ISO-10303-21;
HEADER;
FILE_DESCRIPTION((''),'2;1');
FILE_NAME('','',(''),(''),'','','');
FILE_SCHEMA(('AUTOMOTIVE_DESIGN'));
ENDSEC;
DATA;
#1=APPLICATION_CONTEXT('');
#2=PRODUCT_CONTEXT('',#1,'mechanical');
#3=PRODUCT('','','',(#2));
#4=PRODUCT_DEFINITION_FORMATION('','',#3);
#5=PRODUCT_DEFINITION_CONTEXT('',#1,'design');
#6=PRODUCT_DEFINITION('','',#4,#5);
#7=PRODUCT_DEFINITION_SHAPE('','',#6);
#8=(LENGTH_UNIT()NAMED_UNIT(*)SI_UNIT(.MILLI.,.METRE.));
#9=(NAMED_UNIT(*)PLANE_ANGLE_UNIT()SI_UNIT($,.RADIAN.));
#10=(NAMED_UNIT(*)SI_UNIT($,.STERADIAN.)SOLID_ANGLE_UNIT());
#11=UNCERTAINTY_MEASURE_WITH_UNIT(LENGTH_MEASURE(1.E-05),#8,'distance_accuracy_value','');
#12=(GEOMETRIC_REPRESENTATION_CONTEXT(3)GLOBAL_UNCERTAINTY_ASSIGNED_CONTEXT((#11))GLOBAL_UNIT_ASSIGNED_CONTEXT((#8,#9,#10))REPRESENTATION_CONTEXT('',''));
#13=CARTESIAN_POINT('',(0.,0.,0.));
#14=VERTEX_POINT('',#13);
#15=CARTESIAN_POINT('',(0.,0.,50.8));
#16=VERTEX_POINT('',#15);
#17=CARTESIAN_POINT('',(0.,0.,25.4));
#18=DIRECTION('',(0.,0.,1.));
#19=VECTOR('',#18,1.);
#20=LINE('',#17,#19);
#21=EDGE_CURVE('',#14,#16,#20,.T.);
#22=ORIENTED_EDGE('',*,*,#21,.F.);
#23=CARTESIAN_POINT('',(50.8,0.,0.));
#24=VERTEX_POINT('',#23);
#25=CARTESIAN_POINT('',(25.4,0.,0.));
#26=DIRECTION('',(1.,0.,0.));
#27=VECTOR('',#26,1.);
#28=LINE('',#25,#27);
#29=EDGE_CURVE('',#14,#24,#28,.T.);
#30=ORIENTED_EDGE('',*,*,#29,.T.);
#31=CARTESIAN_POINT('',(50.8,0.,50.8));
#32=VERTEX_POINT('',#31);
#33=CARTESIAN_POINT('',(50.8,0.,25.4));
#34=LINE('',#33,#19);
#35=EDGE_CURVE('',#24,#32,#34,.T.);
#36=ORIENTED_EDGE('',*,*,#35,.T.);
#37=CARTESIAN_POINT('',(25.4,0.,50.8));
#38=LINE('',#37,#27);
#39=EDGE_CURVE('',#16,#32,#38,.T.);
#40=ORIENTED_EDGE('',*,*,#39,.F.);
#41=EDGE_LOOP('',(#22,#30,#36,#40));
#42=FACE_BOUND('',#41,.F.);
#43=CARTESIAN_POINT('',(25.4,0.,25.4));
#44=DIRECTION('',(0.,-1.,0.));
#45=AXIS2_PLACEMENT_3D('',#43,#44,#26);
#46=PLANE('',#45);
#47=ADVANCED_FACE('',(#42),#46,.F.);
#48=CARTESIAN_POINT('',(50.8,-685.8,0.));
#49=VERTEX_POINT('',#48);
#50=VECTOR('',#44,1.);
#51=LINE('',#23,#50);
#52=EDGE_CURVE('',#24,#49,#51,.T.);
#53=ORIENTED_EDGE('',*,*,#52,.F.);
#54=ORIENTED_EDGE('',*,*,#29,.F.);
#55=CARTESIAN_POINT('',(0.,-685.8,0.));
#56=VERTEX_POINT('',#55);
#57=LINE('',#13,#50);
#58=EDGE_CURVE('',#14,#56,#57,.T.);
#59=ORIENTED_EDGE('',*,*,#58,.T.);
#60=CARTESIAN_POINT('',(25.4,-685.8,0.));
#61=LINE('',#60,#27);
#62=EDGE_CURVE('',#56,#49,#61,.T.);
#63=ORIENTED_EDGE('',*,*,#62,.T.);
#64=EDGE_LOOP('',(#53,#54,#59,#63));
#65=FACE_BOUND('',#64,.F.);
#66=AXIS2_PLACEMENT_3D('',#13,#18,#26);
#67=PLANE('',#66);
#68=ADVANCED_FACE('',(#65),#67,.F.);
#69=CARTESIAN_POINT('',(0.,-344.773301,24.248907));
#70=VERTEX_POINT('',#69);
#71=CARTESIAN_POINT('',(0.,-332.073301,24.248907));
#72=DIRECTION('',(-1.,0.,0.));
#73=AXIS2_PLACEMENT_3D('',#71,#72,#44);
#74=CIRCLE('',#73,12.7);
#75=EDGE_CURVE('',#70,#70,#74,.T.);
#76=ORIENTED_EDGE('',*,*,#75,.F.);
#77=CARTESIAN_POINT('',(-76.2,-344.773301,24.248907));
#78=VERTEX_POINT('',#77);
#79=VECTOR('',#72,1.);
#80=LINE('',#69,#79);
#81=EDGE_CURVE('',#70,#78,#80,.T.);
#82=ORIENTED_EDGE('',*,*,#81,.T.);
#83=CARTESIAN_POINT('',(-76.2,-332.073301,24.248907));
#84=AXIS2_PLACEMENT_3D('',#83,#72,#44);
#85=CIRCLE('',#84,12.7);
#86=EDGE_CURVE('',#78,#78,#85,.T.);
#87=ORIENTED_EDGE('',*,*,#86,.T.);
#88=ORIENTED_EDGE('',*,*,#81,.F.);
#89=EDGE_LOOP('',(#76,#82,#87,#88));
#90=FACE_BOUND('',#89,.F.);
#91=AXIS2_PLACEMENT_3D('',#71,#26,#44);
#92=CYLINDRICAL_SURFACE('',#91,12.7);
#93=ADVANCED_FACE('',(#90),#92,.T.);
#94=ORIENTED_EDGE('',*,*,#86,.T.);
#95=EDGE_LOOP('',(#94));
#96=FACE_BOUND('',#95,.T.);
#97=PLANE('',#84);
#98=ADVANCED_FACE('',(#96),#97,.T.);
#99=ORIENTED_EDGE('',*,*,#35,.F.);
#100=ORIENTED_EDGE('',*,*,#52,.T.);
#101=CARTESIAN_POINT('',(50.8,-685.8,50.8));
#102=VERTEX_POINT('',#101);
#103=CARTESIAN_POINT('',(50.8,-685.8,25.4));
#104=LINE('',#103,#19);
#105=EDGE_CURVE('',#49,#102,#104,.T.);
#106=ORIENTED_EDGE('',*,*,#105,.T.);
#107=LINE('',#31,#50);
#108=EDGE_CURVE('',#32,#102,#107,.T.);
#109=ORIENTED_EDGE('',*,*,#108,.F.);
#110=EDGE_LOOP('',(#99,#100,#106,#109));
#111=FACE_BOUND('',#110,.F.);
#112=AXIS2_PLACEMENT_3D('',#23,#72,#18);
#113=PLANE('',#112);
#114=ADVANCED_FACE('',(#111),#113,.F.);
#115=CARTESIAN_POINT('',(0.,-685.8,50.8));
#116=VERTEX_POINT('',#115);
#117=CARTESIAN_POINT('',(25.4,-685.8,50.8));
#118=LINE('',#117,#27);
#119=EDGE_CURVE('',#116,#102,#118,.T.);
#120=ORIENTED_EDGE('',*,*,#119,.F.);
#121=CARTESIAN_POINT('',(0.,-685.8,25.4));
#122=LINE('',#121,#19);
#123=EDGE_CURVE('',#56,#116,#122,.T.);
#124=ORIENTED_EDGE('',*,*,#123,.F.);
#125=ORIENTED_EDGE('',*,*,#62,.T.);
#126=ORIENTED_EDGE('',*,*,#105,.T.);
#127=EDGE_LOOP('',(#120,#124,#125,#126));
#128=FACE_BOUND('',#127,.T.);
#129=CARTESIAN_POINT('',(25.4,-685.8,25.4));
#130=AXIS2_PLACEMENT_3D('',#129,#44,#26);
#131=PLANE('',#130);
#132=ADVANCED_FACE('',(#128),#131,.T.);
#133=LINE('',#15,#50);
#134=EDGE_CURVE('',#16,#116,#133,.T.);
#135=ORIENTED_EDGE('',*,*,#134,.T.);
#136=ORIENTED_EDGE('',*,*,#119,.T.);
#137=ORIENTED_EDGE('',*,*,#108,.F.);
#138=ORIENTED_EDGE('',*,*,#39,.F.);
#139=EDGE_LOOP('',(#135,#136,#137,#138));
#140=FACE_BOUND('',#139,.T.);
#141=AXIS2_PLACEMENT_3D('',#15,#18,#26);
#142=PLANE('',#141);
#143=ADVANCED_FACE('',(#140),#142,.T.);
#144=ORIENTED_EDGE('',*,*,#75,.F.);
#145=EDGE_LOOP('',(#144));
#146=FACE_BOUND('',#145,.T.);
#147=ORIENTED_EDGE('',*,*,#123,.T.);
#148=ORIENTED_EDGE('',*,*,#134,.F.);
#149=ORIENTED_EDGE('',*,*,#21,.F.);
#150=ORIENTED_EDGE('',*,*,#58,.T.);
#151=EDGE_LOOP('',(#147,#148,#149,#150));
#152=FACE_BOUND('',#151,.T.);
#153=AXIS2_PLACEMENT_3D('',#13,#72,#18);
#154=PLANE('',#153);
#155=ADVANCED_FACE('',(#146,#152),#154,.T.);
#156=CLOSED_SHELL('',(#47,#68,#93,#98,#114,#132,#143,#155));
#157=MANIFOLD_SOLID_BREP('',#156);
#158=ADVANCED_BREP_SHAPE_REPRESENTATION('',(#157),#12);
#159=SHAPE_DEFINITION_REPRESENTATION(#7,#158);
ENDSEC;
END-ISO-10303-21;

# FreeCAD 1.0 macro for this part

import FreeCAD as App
import Part
import Sketcher
from FreeCAD import Vector
Q = App.Units.Quantity


def add_polygon(sketch, points):
    """Adds a closed chain of lines whose ends are joined by coincident constraints."""
    first, n = sketch.GeometryCount, len(points)
    for a, b in zip(points, points[1:] + points[:1]):
        sketch.addGeometry(Part.LineSegment(App.Vector(*a, 0), App.Vector(*b, 0)), False)
    for i in range(n):
        sketch.addConstraint(Sketcher.Constraint("Coincident", first + i, 2, first + (i + 1) % n, 1))

doc = App.newDocument("Part")
body = doc.addObject("PartDesign::Body", "Body")

# Sketch on XZ plane
sketch1 = body.newObject("Sketcher::SketchObject", "Sketch")
sketch1.AttachmentSupport = (doc.getObject("XZ_Plane"), [""])
sketch1.MapMode = "FlatFace"
add_polygon(sketch1, [(0, 51), (0, 0), (51, 0), (51, 51)])  # lines 0-3
sketch1.addConstraint([
    Sketcher.Constraint("Vertical", 0),
    Sketcher.Constraint("Horizontal", 1),
    Sketcher.Constraint("Vertical", 2),
    Sketcher.Constraint("Horizontal", 3),
    Sketcher.Constraint("Coincident", 0, 2, -1, 1),
    Sketcher.Constraint("Equal", 3, 0),
    Sketcher.Constraint("DistanceX", 1, 1, 1, 2, Q("2 in")),
])
pad1 = body.newObject("PartDesign::Pad", "Pad")
pad1.Profile = sketch1
pad1.Length = Q("27 in")

# Sketch on YZ plane
sketch2 = body.newObject("Sketcher::SketchObject", "Sketch001")
sketch2.AttachmentSupport = (doc.getObject("YZ_Plane"), [""])
sketch2.MapMode = "FlatFace"
sketch2.addGeometry(Part.Circle(Vector(-332, 24, 0), Vector(0, 0, 1), 13), False)
sketch2.addConstraint([
    Sketcher.Constraint("Diameter", 0, Q("1 in")),
    Sketcher.Constraint("DistanceX", 0, 3, -1, 1, 332.073301),
    Sketcher.Constraint("DistanceY", -1, 1, 0, 3, 24.248907),
])
pad2 = body.newObject("PartDesign::Pad", "Pad001")
pad2.Profile = sketch2
pad2.Length = Q("3 in")
pad2.Reversed = True

doc.recompute()
